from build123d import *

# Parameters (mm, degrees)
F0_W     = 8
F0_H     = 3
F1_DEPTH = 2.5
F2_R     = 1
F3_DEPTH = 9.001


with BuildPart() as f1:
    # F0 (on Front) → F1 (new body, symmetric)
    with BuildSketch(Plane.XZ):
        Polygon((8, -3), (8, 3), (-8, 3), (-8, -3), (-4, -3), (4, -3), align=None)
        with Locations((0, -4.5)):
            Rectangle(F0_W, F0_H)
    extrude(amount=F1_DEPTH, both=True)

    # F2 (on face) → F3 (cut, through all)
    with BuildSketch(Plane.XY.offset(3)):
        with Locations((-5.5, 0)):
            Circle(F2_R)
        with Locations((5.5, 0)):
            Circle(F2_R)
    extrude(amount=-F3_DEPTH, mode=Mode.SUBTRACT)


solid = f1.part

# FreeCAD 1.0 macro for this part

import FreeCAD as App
import Part
import Sketcher
Q = App.Units.Quantity


def add_polygon(sketch, points):
    """Adds a closed chain of lines whose ends are joined by coincident constraints."""
    first, n = sketch.GeometryCount, len(points)
    for a, b in zip(points, points[1:] + points[:1]):
        sketch.addGeometry(Part.LineSegment(App.Vector(*a, 0), App.Vector(*b, 0)), False)
    for i in range(n):
        sketch.addConstraint(Sketcher.Constraint("Coincident", first + i, 2, first + (i + 1) % n, 1))

doc = App.newDocument("Part")
params = doc.addObject("Spreadsheet::Sheet", "Params")
for row, (alias, value) in enumerate([
    ("sketch1_width", "16 mm"),
    ("sketch1_width2", "4 mm"),
    ("sketch1_height", "6 mm"),
    ("sketch1_height2", "3 mm"),
    ("pad1_length", "5 mm"),
    ("sketch2_diameter", "2 mm"),
], start=1):
    params.set(f"A{row}", alias)
    params.set(f"B{row}", "=" + value)
    params.setAlias(f"B{row}", alias)

body = doc.addObject("PartDesign::Body", "Body")

# Sketch on XZ plane
sketch1 = body.newObject("Sketcher::SketchObject", "Sketch")
sketch1.AttachmentSupport = (doc.getObject("XZ_Plane"), [""])
sketch1.MapMode = "FlatFace"
add_polygon(sketch1, [(8, -3), (8, 3), (-8, 3), (-8, -3), (-4, -3), (-4, -6), (4, -6), (4, -3)])  # lines 0-7
sketch1.addConstraint(Sketcher.Constraint("Vertical", 0))
sketch1.addConstraint(Sketcher.Constraint("Horizontal", 1))
sketch1.addConstraint(Sketcher.Constraint("Vertical", 2))
sketch1.addConstraint(Sketcher.Constraint("Horizontal", 3))
sketch1.addConstraint(Sketcher.Constraint("Vertical", 4))
sketch1.addConstraint(Sketcher.Constraint("Horizontal", 5))
sketch1.addConstraint(Sketcher.Constraint("Vertical", 6))
sketch1.addConstraint(Sketcher.Constraint("Horizontal", 7))
sketch1.addConstraint(Sketcher.Constraint("Symmetric", 0, 2, 2, 2, -1, 1))
sketch1.addConstraint(Sketcher.Constraint("Symmetric", 3, 2, 6, 2, -2))
sketch1.addConstraint(Sketcher.Constraint("DistanceX", 1, 2, 1, 1, Q("16 mm")))
sketch1.addConstraint(Sketcher.Constraint("DistanceX", 3, 1, 3, 2, Q("4 mm")))
sketch1.addConstraint(Sketcher.Constraint("DistanceY", 0, 1, 0, 2, Q("6 mm")))
sketch1.addConstraint(Sketcher.Constraint("DistanceY", 4, 2, 4, 1, Q("3 mm")))
sketch1.setExpression("Constraints[18]", "Params.sketch1_width")
sketch1.setExpression("Constraints[19]", "Params.sketch1_width2")
sketch1.setExpression("Constraints[20]", "Params.sketch1_height")
sketch1.setExpression("Constraints[21]", "Params.sketch1_height2")
pad1 = body.newObject("PartDesign::Pad", "Pad")
pad1.Profile = sketch1
pad1.setExpression("Length", "Params.pad1_length")
pad1.Midplane = True

# Sketch on XY plane
sketch2 = body.newObject("Sketcher::SketchObject", "Sketch001")
sketch2.AttachmentSupport = (doc.getObject("XY_Plane"), [""])
sketch2.MapMode = "FlatFace"
sketch2.AttachmentOffset = App.Placement(App.Vector(0, 0, 3), App.Rotation())
sketch2.addGeometry(Part.Circle(App.Vector(-5.5, 0, 0), App.Vector(0, 0, 1), 1), False)
sketch2.addGeometry(Part.Circle(App.Vector(5.5, 0, 0), App.Vector(0, 0, 1), 1), False)
sketch2.addConstraint(Sketcher.Constraint("Equal", 0, 1))
sketch2.addConstraint(Sketcher.Constraint("Symmetric", 0, 3, 1, 3, -1, 1))
sketch2.addConstraint(Sketcher.Constraint("PointOnObject", 0, 3, -1))
sketch2.addConstraint(Sketcher.Constraint("Diameter", 0, Q("2 mm")))
sketch2.addConstraint(Sketcher.Constraint("DistanceX", 0, 3, 1, 3, Q("11 mm")))
sketch2.setExpression("Constraints[3]", "Params.sketch2_diameter")
pocket1 = body.newObject("PartDesign::Pocket", "Pocket")
pocket1.Profile = sketch2
pocket1.Type = "ThroughAll"

doc.recompute()
